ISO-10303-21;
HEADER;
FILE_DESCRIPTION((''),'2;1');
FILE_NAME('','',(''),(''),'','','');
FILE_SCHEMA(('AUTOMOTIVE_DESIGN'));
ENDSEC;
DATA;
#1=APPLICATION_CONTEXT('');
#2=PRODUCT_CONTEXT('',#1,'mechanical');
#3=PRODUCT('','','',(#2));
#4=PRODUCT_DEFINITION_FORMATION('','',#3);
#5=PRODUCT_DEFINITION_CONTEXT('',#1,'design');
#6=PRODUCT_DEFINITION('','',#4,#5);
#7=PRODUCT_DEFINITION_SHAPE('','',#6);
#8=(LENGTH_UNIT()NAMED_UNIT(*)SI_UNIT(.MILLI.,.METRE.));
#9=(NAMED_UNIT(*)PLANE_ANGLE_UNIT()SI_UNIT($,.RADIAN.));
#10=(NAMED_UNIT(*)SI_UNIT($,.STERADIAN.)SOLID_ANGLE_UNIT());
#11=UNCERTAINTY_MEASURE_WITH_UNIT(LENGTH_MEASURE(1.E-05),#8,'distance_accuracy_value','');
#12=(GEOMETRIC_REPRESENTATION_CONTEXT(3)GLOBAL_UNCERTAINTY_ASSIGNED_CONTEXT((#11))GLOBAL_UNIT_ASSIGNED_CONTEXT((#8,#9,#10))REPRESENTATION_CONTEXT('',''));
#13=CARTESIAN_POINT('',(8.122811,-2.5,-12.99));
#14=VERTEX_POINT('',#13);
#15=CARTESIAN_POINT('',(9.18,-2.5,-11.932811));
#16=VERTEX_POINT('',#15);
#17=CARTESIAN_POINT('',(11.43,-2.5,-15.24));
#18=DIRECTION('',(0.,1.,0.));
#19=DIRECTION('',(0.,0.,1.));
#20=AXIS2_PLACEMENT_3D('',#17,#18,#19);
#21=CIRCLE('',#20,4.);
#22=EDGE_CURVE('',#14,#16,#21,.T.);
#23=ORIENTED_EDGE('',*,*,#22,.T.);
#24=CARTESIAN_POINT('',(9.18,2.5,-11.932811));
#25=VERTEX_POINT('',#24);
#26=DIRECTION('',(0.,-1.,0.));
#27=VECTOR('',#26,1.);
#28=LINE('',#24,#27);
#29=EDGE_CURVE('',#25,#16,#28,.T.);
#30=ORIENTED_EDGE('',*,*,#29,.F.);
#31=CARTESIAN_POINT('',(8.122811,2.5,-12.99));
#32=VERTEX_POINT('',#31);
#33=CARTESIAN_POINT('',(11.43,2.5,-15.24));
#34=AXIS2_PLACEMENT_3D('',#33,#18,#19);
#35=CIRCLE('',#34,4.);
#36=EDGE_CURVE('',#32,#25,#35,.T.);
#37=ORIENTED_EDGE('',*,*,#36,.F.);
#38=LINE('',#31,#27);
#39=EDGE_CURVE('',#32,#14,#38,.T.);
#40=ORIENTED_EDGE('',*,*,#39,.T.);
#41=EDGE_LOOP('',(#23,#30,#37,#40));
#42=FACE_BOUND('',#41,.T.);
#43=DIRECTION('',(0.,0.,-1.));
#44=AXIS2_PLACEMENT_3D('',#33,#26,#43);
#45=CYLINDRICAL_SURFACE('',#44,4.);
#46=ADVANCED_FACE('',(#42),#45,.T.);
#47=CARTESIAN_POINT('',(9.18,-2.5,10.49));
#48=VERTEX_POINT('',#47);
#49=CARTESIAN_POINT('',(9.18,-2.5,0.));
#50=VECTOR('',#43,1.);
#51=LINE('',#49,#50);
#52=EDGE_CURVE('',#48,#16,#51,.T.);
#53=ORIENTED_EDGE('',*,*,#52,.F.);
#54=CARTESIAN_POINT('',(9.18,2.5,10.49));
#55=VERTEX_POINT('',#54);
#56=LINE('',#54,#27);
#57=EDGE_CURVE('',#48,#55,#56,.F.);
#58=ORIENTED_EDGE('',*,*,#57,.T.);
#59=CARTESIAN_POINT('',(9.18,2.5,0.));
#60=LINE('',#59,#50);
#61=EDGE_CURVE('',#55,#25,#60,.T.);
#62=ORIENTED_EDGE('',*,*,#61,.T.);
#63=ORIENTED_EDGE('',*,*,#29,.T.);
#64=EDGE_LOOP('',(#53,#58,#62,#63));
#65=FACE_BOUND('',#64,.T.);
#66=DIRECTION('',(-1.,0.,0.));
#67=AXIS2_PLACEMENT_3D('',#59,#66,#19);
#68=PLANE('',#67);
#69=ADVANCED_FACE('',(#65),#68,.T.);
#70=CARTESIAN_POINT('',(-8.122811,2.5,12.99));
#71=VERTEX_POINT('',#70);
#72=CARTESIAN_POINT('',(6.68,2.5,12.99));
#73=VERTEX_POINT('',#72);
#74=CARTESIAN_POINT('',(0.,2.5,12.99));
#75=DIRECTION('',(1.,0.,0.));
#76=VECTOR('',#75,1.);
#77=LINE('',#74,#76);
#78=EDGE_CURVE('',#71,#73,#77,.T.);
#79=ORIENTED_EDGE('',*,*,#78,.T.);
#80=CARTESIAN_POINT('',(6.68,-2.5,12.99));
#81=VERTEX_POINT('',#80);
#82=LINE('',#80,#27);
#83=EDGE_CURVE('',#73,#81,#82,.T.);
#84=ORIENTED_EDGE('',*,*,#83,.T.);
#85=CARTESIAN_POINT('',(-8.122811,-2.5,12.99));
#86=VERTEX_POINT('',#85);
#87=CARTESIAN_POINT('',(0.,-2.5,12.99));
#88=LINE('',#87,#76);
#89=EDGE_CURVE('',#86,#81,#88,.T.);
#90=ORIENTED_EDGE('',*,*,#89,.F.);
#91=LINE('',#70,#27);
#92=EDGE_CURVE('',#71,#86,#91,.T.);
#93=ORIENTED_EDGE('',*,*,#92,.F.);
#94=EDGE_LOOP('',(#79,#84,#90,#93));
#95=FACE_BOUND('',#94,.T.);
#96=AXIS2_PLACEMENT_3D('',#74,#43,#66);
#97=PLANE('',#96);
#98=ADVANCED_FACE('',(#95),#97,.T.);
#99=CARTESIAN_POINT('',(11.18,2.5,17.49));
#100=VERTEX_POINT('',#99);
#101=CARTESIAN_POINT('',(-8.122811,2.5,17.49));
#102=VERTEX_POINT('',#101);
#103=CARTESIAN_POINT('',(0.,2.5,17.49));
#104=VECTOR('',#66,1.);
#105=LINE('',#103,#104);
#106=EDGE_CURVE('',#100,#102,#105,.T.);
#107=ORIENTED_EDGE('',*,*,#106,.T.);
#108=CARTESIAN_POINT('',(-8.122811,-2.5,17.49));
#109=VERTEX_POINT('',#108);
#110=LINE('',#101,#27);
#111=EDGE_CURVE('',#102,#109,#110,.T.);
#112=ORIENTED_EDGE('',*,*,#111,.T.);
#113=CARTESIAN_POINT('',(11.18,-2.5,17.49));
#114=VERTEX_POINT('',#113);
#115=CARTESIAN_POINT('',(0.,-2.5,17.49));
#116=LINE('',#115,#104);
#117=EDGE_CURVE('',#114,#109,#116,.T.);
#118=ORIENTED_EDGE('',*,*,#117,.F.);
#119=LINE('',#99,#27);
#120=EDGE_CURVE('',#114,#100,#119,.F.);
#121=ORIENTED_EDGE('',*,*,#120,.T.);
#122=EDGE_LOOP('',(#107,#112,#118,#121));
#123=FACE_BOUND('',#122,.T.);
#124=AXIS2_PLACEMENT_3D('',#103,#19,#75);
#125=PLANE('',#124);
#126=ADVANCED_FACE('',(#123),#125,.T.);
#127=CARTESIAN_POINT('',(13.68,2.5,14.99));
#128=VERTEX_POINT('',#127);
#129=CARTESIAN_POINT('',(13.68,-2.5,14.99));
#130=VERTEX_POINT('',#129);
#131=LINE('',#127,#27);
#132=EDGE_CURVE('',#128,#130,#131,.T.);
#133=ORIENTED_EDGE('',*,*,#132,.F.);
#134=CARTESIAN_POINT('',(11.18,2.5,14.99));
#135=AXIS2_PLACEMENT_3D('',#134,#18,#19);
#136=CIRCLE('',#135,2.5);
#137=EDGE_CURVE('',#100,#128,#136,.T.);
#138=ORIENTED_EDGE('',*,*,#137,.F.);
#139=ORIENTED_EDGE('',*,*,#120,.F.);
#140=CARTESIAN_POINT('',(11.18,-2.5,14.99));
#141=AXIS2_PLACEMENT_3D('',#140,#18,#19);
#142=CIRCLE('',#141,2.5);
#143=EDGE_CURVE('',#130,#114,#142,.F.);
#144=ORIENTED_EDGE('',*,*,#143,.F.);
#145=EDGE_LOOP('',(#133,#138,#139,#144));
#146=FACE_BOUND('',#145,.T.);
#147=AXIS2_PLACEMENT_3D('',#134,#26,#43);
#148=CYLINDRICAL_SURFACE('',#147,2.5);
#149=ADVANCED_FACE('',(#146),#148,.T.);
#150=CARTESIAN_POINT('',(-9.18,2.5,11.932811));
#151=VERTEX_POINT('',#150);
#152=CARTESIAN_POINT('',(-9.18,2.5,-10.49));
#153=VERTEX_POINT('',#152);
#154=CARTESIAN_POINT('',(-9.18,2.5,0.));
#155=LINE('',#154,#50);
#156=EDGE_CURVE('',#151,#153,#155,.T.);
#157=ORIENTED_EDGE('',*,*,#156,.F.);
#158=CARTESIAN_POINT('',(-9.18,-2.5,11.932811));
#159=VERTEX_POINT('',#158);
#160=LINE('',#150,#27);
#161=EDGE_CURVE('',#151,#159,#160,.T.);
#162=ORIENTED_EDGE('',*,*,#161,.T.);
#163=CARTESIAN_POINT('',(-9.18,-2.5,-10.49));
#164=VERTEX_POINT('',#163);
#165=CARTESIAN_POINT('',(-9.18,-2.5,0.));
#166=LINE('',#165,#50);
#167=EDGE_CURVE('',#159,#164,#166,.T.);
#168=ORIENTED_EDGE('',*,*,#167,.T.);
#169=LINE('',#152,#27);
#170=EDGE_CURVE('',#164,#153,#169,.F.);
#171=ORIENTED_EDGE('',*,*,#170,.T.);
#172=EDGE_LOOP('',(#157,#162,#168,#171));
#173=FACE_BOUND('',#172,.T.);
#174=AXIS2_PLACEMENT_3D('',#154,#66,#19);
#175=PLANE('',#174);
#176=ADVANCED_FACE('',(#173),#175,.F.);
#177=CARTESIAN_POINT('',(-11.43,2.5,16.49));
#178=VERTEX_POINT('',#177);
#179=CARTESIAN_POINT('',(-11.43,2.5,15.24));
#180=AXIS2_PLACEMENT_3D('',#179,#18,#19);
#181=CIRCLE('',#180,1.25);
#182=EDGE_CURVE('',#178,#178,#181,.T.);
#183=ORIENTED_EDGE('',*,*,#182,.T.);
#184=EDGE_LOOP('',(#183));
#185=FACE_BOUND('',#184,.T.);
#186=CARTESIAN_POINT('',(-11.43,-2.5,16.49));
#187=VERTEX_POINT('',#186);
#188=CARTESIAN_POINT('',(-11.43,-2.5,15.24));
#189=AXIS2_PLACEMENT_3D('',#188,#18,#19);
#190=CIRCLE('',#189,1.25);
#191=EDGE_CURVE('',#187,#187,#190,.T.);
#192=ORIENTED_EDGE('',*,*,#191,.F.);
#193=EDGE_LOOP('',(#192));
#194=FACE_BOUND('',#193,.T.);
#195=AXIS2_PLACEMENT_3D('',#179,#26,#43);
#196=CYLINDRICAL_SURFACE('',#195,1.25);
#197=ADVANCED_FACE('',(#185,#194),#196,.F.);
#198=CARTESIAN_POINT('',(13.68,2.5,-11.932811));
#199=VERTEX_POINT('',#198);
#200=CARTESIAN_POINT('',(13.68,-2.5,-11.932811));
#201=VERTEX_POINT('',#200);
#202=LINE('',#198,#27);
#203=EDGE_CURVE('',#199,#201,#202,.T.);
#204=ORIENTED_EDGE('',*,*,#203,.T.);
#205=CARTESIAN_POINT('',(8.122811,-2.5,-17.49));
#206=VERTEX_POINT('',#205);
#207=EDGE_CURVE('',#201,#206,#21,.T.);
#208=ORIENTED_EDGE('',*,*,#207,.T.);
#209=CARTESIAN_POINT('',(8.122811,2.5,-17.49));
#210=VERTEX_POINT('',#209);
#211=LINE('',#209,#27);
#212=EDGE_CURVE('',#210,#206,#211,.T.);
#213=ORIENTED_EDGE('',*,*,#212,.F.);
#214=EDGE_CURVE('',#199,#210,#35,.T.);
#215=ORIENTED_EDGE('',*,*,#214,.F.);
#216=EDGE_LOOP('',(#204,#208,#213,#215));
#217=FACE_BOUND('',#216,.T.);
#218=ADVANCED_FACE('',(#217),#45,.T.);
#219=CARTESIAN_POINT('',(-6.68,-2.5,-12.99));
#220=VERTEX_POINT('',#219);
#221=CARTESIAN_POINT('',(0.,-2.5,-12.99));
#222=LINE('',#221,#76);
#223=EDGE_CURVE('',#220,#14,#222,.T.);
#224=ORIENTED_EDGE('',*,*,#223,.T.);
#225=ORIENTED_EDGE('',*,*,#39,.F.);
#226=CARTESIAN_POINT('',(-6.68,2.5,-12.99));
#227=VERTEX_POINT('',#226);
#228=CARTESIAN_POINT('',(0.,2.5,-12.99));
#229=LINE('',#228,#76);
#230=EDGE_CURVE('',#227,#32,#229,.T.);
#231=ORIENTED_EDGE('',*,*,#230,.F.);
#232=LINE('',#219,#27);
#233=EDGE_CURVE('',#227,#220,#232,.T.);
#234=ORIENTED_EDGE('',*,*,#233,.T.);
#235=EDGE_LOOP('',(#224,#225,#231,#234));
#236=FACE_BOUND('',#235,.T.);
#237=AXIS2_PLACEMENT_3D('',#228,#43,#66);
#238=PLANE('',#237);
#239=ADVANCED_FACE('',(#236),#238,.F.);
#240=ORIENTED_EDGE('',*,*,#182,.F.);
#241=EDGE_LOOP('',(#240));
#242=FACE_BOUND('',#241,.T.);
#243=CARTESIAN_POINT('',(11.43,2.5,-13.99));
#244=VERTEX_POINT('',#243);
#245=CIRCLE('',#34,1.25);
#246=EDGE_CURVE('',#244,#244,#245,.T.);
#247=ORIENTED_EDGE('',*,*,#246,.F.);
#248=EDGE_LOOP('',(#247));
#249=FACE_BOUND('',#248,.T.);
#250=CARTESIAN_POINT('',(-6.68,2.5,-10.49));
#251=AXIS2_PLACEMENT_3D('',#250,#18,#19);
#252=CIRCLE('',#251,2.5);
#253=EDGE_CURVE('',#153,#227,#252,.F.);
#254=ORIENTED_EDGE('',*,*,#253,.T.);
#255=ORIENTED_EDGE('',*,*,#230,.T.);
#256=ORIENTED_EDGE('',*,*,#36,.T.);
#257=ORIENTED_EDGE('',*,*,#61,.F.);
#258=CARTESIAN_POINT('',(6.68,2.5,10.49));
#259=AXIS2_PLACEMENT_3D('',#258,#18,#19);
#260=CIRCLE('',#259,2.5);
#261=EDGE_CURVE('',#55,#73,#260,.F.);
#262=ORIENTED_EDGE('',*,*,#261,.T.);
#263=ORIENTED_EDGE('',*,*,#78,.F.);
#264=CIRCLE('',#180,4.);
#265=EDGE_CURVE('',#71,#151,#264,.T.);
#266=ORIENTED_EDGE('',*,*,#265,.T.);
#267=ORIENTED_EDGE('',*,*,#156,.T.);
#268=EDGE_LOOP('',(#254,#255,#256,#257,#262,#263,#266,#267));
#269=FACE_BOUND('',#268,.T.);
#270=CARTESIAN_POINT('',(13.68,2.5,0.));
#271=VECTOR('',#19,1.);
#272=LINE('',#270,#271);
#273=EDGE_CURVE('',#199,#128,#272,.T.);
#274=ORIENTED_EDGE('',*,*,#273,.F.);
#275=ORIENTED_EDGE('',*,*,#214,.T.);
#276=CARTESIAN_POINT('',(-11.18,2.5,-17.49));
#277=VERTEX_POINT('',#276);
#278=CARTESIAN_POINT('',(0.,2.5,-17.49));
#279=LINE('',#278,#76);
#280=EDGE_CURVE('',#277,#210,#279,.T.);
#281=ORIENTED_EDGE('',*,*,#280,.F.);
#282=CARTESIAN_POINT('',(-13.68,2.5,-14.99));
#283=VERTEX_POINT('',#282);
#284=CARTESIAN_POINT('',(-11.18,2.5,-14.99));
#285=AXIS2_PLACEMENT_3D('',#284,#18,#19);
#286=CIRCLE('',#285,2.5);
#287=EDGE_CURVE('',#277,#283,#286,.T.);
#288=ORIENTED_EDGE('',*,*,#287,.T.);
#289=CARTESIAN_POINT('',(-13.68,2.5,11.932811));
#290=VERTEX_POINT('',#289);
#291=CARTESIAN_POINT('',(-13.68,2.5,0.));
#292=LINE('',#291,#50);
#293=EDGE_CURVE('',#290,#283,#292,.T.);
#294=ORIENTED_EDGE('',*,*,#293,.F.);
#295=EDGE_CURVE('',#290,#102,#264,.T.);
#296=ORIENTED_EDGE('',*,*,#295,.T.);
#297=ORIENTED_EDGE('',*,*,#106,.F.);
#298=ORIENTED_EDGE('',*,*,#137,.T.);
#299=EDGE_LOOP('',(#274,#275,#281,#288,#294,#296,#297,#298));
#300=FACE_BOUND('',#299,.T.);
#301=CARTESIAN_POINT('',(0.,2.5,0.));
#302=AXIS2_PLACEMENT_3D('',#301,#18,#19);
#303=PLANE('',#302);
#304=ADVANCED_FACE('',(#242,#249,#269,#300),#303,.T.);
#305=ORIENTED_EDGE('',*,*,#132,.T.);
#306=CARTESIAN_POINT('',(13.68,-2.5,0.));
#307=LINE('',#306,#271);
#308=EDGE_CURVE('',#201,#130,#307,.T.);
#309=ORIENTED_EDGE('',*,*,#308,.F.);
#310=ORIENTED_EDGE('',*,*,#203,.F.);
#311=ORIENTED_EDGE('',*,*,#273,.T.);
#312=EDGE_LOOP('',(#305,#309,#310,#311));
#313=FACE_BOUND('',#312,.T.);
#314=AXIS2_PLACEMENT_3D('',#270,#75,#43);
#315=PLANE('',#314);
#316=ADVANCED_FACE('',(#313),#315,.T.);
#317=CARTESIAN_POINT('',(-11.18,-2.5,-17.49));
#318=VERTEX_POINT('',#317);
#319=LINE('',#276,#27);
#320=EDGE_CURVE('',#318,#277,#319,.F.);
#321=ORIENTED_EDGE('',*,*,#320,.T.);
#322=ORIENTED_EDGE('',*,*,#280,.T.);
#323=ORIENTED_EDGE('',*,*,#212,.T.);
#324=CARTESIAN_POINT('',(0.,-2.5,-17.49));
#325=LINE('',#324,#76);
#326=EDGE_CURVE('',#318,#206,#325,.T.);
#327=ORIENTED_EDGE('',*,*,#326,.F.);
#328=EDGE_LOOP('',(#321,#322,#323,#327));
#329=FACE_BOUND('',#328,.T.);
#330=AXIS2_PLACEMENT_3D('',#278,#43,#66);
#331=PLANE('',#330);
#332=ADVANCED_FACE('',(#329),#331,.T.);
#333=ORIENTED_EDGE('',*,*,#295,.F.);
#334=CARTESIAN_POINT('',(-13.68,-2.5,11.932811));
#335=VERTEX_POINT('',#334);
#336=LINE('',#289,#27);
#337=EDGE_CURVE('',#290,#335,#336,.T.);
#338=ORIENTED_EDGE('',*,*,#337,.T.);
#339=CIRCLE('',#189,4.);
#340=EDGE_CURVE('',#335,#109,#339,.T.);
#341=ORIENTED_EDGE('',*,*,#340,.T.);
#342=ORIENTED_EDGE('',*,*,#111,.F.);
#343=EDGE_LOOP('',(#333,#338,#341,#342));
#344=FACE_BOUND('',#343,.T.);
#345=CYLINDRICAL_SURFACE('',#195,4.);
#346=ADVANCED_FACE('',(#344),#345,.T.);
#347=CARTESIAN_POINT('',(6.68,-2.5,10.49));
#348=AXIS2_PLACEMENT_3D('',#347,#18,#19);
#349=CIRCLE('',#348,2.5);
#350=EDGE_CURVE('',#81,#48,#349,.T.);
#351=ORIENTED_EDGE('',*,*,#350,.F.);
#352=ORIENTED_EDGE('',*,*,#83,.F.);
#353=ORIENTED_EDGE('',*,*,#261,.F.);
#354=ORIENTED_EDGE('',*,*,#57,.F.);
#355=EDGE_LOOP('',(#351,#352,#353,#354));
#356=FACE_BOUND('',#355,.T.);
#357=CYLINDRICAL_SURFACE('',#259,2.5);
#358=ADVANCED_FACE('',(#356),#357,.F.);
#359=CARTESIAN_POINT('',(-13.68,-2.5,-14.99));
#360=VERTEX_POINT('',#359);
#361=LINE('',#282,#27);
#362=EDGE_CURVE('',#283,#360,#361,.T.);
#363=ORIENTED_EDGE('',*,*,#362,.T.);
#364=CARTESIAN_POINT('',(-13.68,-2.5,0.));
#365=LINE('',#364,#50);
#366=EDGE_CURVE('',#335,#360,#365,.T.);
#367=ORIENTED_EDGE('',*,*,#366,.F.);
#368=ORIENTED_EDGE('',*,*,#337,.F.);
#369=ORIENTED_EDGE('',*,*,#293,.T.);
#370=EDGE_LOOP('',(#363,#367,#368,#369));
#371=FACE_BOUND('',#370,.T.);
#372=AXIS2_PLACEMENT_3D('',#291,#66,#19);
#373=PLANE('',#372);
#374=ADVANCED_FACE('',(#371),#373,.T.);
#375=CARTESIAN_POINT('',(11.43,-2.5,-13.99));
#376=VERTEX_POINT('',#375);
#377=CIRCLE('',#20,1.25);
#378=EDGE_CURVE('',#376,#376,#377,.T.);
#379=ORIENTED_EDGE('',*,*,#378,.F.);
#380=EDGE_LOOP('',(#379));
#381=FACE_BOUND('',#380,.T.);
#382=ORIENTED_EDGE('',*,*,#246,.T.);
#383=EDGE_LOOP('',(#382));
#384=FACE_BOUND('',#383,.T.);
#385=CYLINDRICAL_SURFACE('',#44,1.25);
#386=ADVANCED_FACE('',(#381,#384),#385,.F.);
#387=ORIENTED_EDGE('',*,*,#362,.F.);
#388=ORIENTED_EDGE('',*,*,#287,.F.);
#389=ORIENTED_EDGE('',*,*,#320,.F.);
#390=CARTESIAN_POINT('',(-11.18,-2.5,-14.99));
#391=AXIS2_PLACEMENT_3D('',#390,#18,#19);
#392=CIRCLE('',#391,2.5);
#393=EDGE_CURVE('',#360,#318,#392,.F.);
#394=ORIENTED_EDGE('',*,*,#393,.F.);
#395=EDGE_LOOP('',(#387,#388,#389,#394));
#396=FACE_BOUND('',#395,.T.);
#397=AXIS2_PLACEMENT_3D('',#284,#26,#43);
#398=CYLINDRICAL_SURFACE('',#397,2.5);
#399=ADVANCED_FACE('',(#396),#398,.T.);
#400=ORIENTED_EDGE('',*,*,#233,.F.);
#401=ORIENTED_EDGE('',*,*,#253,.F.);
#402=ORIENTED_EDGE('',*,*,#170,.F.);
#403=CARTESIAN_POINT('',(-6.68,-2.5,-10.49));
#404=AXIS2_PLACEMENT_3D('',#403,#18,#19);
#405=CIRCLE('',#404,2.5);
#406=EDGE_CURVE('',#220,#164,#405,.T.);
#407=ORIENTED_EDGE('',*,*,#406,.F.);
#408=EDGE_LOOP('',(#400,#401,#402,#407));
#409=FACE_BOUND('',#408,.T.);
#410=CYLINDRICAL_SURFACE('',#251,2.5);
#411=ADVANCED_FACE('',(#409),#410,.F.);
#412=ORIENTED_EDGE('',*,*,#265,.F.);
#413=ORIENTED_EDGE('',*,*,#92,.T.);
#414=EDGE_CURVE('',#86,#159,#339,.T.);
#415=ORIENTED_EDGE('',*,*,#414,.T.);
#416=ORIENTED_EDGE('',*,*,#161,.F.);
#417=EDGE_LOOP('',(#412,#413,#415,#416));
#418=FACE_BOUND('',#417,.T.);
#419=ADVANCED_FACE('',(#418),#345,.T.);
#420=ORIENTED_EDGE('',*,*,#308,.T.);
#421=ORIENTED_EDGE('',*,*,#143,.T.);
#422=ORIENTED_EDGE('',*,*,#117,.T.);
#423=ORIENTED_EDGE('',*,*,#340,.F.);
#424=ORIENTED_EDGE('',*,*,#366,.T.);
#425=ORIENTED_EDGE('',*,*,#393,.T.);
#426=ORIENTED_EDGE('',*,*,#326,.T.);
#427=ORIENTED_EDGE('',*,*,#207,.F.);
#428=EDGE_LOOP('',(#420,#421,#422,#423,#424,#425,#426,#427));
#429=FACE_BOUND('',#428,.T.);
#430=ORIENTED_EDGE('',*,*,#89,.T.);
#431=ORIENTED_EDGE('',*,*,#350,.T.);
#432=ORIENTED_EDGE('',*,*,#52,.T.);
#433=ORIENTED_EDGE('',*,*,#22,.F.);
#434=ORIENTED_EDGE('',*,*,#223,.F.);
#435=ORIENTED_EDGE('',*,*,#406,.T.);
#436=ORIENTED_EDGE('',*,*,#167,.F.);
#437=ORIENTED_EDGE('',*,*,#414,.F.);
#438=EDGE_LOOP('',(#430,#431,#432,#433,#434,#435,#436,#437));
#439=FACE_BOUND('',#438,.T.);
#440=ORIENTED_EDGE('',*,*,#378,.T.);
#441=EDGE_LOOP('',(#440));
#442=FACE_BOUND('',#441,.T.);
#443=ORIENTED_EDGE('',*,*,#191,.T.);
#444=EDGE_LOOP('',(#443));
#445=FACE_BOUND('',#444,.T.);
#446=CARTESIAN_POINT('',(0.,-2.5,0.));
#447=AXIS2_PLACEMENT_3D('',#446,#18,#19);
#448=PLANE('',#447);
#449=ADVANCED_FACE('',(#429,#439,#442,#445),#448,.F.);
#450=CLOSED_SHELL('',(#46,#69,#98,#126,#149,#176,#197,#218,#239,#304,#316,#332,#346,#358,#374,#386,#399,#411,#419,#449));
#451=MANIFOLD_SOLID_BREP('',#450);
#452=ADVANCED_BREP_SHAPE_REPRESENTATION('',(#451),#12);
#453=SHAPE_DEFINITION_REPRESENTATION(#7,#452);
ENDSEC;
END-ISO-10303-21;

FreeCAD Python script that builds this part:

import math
import FreeCAD as App
import Part
import Sketcher


def edges_at(feature, points):
    """Names of the edges that pass closest to the given points."""
    edges = feature.Shape.Edges
    near = lambda p: min(range(len(edges)), key=lambda i: edges[i].distToShape(Part.Vertex(*p))[0])
    return sorted({f"Edge{near(p) + 1}" for p in points})

doc = App.newDocument("Part")
params = doc.addObject("Spreadsheet::Sheet", "Params")
for row, (alias, value) in enumerate([
    ("sketch1_radius", "4 mm"),
    ("sketch1_diameter", "2.5 mm"),
    ("pad1_length", "5 mm"),
    ("fillet_radius", "2.5 mm"),
], start=1):
    params.set(f"A{row}", alias)
    params.set(f"B{row}", "=" + value)
    params.setAlias(f"B{row}", alias)

body = doc.addObject("PartDesign::Body", "Body")

# Sketch on XZ plane
sketch1 = body.newObject("Sketcher::SketchObject", "Sketch")
sketch1.AttachmentSupport = (doc.getObject("XZ_Plane"), [""])
sketch1.MapMode = "FlatFace"
sketch1.addGeometry([
    Part.LineSegment(App.Vector(-13.68, -17.49, 0), App.Vector(-13.68, 11.932811, 0)),  # 0
    Part.ArcOfCircle(Part.Circle(App.Vector(-11.43, 15.24, 0), App.Vector(0, 0, 1), 4), math.radians(34.228866), math.radians(235.771134)),  # 1
    Part.LineSegment(App.Vector(-8.122811, 17.49, 0), App.Vector(13.68, 17.49, 0)),  # 2
    Part.LineSegment(App.Vector(13.68, 17.49, 0), App.Vector(13.68, -11.932811, 0)),  # 3
    Part.ArcOfCircle(Part.Circle(App.Vector(11.43, -15.24, 0), App.Vector(0, 0, 1), 4), math.radians(-145.771134), math.radians(55.771134)),  # 4
    Part.LineSegment(App.Vector(8.122811, -17.49, 0), App.Vector(-13.68, -17.49, 0)),  # 5
    Part.LineSegment(App.Vector(-9.18, 11.932811, 0), App.Vector(-9.18, -12.99, 0)),  # 6
    Part.LineSegment(App.Vector(-9.18, -12.99, 0), App.Vector(8.122811, -12.99, 0)),  # 7
    Part.ArcOfCircle(Part.Circle(App.Vector(11.43, -15.24, 0), App.Vector(0, 0, 1), 4), math.radians(124.228866), math.radians(145.771134)),  # 8
    Part.LineSegment(App.Vector(9.18, -11.932811, 0), App.Vector(9.18, 12.99, 0)),  # 9
    Part.LineSegment(App.Vector(9.18, 12.99, 0), App.Vector(-8.122811, 12.99, 0)),  # 10
    Part.ArcOfCircle(Part.Circle(App.Vector(-11.43, 15.24, 0), App.Vector(0, 0, 1), 4), math.radians(-55.771134), math.radians(-34.228866)),  # 11
    Part.Circle(App.Vector(-11.43, 15.24, 0), App.Vector(0, 0, 1), 1.25),  # 12
    Part.Circle(App.Vector(11.43, -15.24, 0), App.Vector(0, 0, 1), 1.25),  # 13
], False)
sketch1.addConstraint([
    Sketcher.Constraint("Coincident", 0, 2, 1, 2),
    Sketcher.Constraint("Coincident", 1, 1, 2, 1),
    Sketcher.Constraint("Coincident", 2, 2, 3, 1),
    Sketcher.Constraint("Coincident", 3, 2, 4, 2),
    Sketcher.Constraint("Coincident", 4, 1, 5, 1),
    Sketcher.Constraint("Coincident", 5, 2, 0, 1),
    Sketcher.Constraint("Coincident", 6, 2, 7, 1),
    Sketcher.Constraint("Coincident", 7, 2, 8, 2),
    Sketcher.Constraint("Coincident", 8, 1, 9, 1),
    Sketcher.Constraint("Coincident", 9, 2, 10, 1),
    Sketcher.Constraint("Coincident", 10, 2, 11, 2),
    Sketcher.Constraint("Coincident", 11, 1, 6, 1),
    Sketcher.Constraint("Vertical", 0),
    Sketcher.Constraint("Horizontal", 2),
    Sketcher.Constraint("Vertical", 3),
    Sketcher.Constraint("Horizontal", 5),
    Sketcher.Constraint("Vertical", 6),
    Sketcher.Constraint("Horizontal", 7),
    Sketcher.Constraint("Vertical", 9),
    Sketcher.Constraint("Horizontal", 10),
    Sketcher.Constraint("Coincident", 8, 3, 4, 3),
    Sketcher.Constraint("Coincident", 11, 3, 1, 3),
    Sketcher.Constraint("Coincident", 12, 3, 1, 3),
    Sketcher.Constraint("Coincident", 13, 3, 4, 3),
    Sketcher.Constraint("Equal", 1, 4),
    Sketcher.Constraint("Equal", 4, 8),
    Sketcher.Constraint("Equal", 8, 11),
    Sketcher.Constraint("Equal", 12, 13),
    Sketcher.Constraint("Symmetric", 1, 3, 4, 3, -1, 1),
    Sketcher.Constraint("Symmetric", 2, 2, 5, 2, -1, 1),
    Sketcher.Constraint("Symmetric", 6, 2, 9, 2, -1, 1),
    Sketcher.Constraint("Horizontal", 3, 2, 8, 1),
    Sketcher.Constraint("Vertical", 4, 1, 7, 2),
    Sketcher.Constraint("Radius", 1, 4.0),
    Sketcher.Constraint("Diameter", 12, 2.5),
    Sketcher.Constraint("DistanceX", 5, 2, 6, 2, 4.5),
    Sketcher.Constraint("DistanceY", 5, 2, 6, 2, 4.5),
    Sketcher.Constraint("DistanceX", 1, 3, -1, 1, 11.43),
    Sketcher.Constraint("DistanceY", -1, 1, 1, 3, 15.24),
])
sketch1.setExpression("Constraints[33]", "Params.sketch1_radius")
sketch1.setExpression("Constraints[34]", "Params.sketch1_diameter")
pad1 = body.newObject("PartDesign::Pad", "Pad")
pad1.Profile = sketch1
pad1.setExpression("Length", "Params.pad1_length")
pad1.Midplane = True
doc.recompute()

fillet = body.newObject("PartDesign::Fillet", "Fillet")
fillet.Base = (pad1, edges_at(pad1, [
    (-9.18, 0, -12.99),
    (9.18, -1.25, 12.99),
    (13.68, 1.25, 17.49),
    (-13.68, -1.25, -17.49),
]))
fillet.setExpression("Radius", "Params.fillet_radius")

doc.recompute()
